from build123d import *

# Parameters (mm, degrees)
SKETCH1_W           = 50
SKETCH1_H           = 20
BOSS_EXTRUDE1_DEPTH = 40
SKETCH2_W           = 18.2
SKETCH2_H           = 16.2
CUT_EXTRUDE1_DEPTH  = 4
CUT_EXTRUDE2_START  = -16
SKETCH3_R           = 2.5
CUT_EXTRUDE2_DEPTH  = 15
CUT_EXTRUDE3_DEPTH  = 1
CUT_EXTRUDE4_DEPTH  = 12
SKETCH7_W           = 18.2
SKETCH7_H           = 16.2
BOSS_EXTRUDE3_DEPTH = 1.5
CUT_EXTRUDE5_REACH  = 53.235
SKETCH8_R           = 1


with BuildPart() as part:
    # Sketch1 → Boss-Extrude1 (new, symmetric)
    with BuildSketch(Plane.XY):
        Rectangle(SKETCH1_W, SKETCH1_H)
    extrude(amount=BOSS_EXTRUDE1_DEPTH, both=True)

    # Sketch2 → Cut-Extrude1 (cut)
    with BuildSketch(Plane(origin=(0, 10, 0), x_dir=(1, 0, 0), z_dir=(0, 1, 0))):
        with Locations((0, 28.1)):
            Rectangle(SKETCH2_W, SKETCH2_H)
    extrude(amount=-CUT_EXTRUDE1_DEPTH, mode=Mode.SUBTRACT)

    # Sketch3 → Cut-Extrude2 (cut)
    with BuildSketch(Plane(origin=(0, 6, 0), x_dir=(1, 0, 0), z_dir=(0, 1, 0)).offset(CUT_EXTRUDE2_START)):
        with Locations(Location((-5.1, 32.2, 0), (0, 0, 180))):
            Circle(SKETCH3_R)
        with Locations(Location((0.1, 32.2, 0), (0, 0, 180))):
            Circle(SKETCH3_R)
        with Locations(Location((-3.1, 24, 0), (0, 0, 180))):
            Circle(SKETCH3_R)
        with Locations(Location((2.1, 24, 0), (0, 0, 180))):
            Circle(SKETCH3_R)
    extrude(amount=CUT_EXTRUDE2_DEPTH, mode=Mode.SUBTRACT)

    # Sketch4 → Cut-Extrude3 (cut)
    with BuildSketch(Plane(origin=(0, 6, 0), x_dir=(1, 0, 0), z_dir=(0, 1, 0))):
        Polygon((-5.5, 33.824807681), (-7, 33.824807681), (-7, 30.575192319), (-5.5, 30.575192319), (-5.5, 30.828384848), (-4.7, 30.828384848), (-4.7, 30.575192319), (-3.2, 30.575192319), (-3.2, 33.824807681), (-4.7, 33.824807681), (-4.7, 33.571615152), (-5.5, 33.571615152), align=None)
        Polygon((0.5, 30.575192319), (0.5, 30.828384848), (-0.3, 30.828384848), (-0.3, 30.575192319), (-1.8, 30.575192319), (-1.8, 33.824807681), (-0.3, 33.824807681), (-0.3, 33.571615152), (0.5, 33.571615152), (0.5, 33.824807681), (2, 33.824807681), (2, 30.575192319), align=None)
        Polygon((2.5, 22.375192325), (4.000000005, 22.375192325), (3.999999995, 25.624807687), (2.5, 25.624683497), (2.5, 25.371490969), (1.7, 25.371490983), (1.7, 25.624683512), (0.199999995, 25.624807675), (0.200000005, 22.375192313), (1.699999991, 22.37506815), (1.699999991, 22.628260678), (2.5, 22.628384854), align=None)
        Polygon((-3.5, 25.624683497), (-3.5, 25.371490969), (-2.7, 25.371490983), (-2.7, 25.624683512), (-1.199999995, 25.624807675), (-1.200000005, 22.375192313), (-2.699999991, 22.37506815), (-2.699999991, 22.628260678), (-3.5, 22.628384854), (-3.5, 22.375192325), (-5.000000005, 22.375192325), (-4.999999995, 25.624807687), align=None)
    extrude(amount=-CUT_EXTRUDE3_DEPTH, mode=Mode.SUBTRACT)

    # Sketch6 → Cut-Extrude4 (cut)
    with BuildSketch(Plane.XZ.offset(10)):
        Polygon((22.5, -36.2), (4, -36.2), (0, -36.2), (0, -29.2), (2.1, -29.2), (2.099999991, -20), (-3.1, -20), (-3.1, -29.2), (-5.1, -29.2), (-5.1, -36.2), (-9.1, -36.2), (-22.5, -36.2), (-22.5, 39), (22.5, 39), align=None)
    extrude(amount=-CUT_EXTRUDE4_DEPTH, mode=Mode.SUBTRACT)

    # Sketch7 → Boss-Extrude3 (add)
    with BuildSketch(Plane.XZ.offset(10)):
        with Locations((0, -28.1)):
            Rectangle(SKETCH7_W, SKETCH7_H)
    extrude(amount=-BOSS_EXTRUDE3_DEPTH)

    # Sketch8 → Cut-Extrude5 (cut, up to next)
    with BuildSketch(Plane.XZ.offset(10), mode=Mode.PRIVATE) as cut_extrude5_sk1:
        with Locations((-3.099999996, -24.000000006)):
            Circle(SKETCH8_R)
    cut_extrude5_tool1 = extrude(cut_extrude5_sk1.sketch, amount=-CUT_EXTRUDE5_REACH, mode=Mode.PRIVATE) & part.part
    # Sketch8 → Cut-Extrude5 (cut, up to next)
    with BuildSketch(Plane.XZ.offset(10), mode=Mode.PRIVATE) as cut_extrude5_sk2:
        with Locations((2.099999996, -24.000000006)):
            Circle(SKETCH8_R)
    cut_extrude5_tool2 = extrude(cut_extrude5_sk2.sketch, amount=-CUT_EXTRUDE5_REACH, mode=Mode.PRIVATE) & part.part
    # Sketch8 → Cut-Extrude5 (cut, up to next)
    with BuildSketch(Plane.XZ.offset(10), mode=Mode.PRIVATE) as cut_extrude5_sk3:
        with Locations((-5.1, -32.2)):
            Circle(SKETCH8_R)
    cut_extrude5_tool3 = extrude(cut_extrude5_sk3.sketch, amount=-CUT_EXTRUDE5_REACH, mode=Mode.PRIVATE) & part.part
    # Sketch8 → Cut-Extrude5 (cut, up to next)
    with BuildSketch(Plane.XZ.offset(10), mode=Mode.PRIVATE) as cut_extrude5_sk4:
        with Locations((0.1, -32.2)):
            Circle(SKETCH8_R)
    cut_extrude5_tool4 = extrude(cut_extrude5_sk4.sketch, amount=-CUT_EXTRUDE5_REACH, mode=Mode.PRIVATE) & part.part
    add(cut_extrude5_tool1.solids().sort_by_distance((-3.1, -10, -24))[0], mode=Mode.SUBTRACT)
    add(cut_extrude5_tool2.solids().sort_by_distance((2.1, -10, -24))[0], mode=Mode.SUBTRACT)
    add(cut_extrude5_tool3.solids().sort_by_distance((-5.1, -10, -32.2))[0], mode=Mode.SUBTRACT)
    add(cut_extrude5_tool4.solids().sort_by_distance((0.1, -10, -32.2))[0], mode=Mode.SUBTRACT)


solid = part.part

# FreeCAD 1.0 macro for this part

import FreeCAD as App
import Part
import Sketcher
Q = App.Units.Quantity


def add_polygon(sketch, points):
    """Adds a closed chain of lines whose ends are joined by coincident constraints."""
    first, n = sketch.GeometryCount, len(points)
    for a, b in zip(points, points[1:] + points[:1]):
        sketch.addGeometry(Part.LineSegment(App.Vector(*a, 0), App.Vector(*b, 0)), False)
    for i in range(n):
        sketch.addConstraint(Sketcher.Constraint("Coincident", first + i, 2, first + (i + 1) % n, 1))

doc = App.newDocument("Part")
body = doc.addObject("PartDesign::Body", "Body")

# Sketch on XY plane
sketch1 = doc.addObject("Sketcher::SketchObject", "Sketch")
body.addObject(sketch1)
sketch1.AttachmentSupport = (doc.XY_Plane, [""])
sketch1.MapMode = "FlatFace"
add_polygon(sketch1, [(-25, 10), (-25, -10), (25, -10), (25, 10)])  # lines 0-3
sketch1.addConstraint(Sketcher.Constraint("Vertical", 0))
sketch1.addConstraint(Sketcher.Constraint("Horizontal", 1))
sketch1.addConstraint(Sketcher.Constraint("Vertical", 2))
sketch1.addConstraint(Sketcher.Constraint("Horizontal", 3))
sketch1.addConstraint(Sketcher.Constraint("Symmetric", 0, 2, 2, 2, -1, 1))
sketch1.addConstraint(Sketcher.Constraint("DistanceX", 1, 1, 1, 2, Q("50 mm")))
sketch1.addConstraint(Sketcher.Constraint("DistanceY", 0, 2, 0, 1, Q("20 mm")))
pad1 = doc.addObject("PartDesign::Pad", "Pad")
body.addObject(pad1)
pad1.Profile = sketch1
pad1.Length = 80
pad1.Midplane = True

# Sketch on XZ plane
sketch2 = doc.addObject("Sketcher::SketchObject", "Sketch001")
body.addObject(sketch2)
sketch2.AttachmentSupport = (doc.XZ_Plane, [""])
sketch2.MapMode = "FlatFace"
sketch2.AttachmentOffset = App.Placement(App.Vector(0, 0, -10), App.Rotation())
add_polygon(sketch2, [(-9, -36), (-9, -20), (9, -20), (9, -36)])  # lines 0-3
sketch2.addConstraint(Sketcher.Constraint("Vertical", 0))
sketch2.addConstraint(Sketcher.Constraint("Horizontal", 1))
sketch2.addConstraint(Sketcher.Constraint("Vertical", 2))
sketch2.addConstraint(Sketcher.Constraint("Horizontal", 3))
sketch2.addConstraint(Sketcher.Constraint("DistanceX", 1, 1, 1, 2, Q("18.2 mm")))
sketch2.addConstraint(Sketcher.Constraint("DistanceY", 0, 1, 0, 2, Q("16.2 mm")))
sketch2.addConstraint(Sketcher.Constraint("DistanceY", 0, 2, -1, 1, Q("20 mm")))
sketch2.addConstraint(Sketcher.Constraint("DistanceX", 0, 2, -1, 1, Q("9.1 mm")))
pocket1 = doc.addObject("PartDesign::Pocket", "Pocket")
body.addObject(pocket1)
pocket1.Profile = sketch2
pocket1.Length = 4
pocket1.Reversed = True

# Sketch on XZ plane
sketch3 = doc.addObject("Sketcher::SketchObject", "Sketch002")
body.addObject(sketch3)
sketch3.AttachmentSupport = (doc.XZ_Plane, [""])
sketch3.MapMode = "FlatFace"
sketch3.AttachmentOffset = App.Placement(App.Vector(0, 0, 10), App.Rotation())
sketch3.addGeometry(Part.Circle(App.Vector(-5.1, -32.2, 0), App.Vector(0, 0, 1), 2.5), False)
sketch3.addGeometry(Part.Circle(App.Vector(0.1, -32.2, 0), App.Vector(0, 0, 1), 2.5), False)
sketch3.addGeometry(Part.Circle(App.Vector(-3.1, -24, 0), App.Vector(0, 0, 1), 2.5), False)
sketch3.addGeometry(Part.Circle(App.Vector(2.1, -24, 0), App.Vector(0, 0, 1), 2.5), False)
sketch3.addConstraint(Sketcher.Constraint("Equal", 0, 1))
sketch3.addConstraint(Sketcher.Constraint("Equal", 1, 2))
sketch3.addConstraint(Sketcher.Constraint("Equal", 2, 3))
sketch3.addConstraint(Sketcher.Constraint("Horizontal", 0, 3, 1, 3))
sketch3.addConstraint(Sketcher.Constraint("Horizontal", 2, 3, 3, 3))
sketch3.addConstraint(Sketcher.Constraint("Diameter", 0, Q("5 mm")))
sketch3.addConstraint(Sketcher.Constraint("DistanceY", 2, 3, -1, 1, Q("24 mm")))
sketch3.addConstraint(Sketcher.Constraint("DistanceX", 0, 3, 2, 3, Q("2 mm")))
sketch3.addConstraint(Sketcher.Constraint("DistanceX", 1, 3, 3, 3, Q("2 mm")))
sketch3.addConstraint(Sketcher.Constraint("DistanceX", 0, 3, -1, 1, Q("5.1 mm")))
sketch3.addConstraint(Sketcher.Constraint("DistanceY", 0, 3, -1, 1, Q("32.2 mm")))
sketch3.addConstraint(Sketcher.Constraint("DistanceX", -1, 1, 1, 3, Q("0.1 mm")))
pocket2 = doc.addObject("PartDesign::Pocket", "Pocket001")
body.addObject(pocket2)
pocket2.Profile = sketch3
pocket2.Length = 15

# Sketch on XZ plane
sketch4 = doc.addObject("Sketcher::SketchObject", "Sketch003")
body.addObject(sketch4)
sketch4.AttachmentSupport = (doc.XZ_Plane, [""])
sketch4.MapMode = "FlatFace"
sketch4.AttachmentOffset = App.Placement(App.Vector(0, 0, -6), App.Rotation())
add_polygon(sketch4, [(-5.5, -33.82), (-7, -33.82), (-7, -30.58), (-5.5, -30.58), (-5.5, -30.83), (-4.7, -30.83), (-4.7, -30.58), (-3.2, -30.58), (-3.2, -33.82), (-4.7, -33.82), (-4.7, -33.57), (-5.5, -33.57)])  # lines 0-11
add_polygon(sketch4, [(0.5, -30.83), (0.5, -30.58), (2, -30.58), (2, -33.82), (0.5, -33.82), (0.5, -33.57), (-0.3, -33.57), (-0.3, -33.82), (-1.8, -33.82), (-1.8, -30.58), (-0.3, -30.58), (-0.3, -30.83)])  # lines 12-23
add_polygon(sketch4, [(2.5, -22.38), (4, -22.38), (4, -25.62), (2.5, -25.62), (2.5, -25.37), (1.7, -25.37), (1.7, -25.62), (0.2, -25.62), (0.2, -22.38), (1.7, -22.38), (1.7, -22.63), (2.5, -22.63)])  # lines 24-35
add_polygon(sketch4, [(-3.5, -25.37), (-3.5, -25.62), (-5, -25.62), (-5, -22.38), (-3.5, -22.38), (-3.5, -22.63), (-2.7, -22.63), (-2.7, -22.38), (-1.2, -22.38), (-1.2, -25.62), (-2.7, -25.62), (-2.7, -25.37)])  # lines 36-47
sketch4.addConstraint(Sketcher.Constraint("Horizontal", 0))
sketch4.addConstraint(Sketcher.Constraint("Vertical", 1))
sketch4.addConstraint(Sketcher.Constraint("Horizontal", 2))
sketch4.addConstraint(Sketcher.Constraint("Vertical", 3))
sketch4.addConstraint(Sketcher.Constraint("Horizontal", 4))
sketch4.addConstraint(Sketcher.Constraint("Vertical", 5))
sketch4.addConstraint(Sketcher.Constraint("Horizontal", 6))
sketch4.addConstraint(Sketcher.Constraint("Vertical", 7))
sketch4.addConstraint(Sketcher.Constraint("Horizontal", 8))
sketch4.addConstraint(Sketcher.Constraint("Vertical", 9))
sketch4.addConstraint(Sketcher.Constraint("Horizontal", 10))
sketch4.addConstraint(Sketcher.Constraint("Vertical", 11))
sketch4.addConstraint(Sketcher.Constraint("Vertical", 12))
sketch4.addConstraint(Sketcher.Constraint("Horizontal", 13))
sketch4.addConstraint(Sketcher.Constraint("Vertical", 14))
sketch4.addConstraint(Sketcher.Constraint("Horizontal", 15))
sketch4.addConstraint(Sketcher.Constraint("Vertical", 16))
sketch4.addConstraint(Sketcher.Constraint("Horizontal", 17))
sketch4.addConstraint(Sketcher.Constraint("Vertical", 18))
sketch4.addConstraint(Sketcher.Constraint("Horizontal", 19))
sketch4.addConstraint(Sketcher.Constraint("Vertical", 20))
sketch4.addConstraint(Sketcher.Constraint("Horizontal", 21))
sketch4.addConstraint(Sketcher.Constraint("Vertical", 22))
sketch4.addConstraint(Sketcher.Constraint("Horizontal", 23))
sketch4.addConstraint(Sketcher.Constraint("Horizontal", 24))
sketch4.addConstraint(Sketcher.Constraint("Vertical", 25))
sketch4.addConstraint(Sketcher.Constraint("Vertical", 27))
sketch4.addConstraint(Sketcher.Constraint("Horizontal", 28))
sketch4.addConstraint(Sketcher.Constraint("Vertical", 29))
sketch4.addConstraint(Sketcher.Constraint("Vertical", 31))
sketch4.addConstraint(Sketcher.Constraint("Vertical", 33))
sketch4.addConstraint(Sketcher.Constraint("Vertical", 35))
sketch4.addConstraint(Sketcher.Constraint("Vertical", 36))
sketch4.addConstraint(Sketcher.Constraint("Vertical", 38))
sketch4.addConstraint(Sketcher.Constraint("Horizontal", 39))
sketch4.addConstraint(Sketcher.Constraint("Vertical", 40))
sketch4.addConstraint(Sketcher.Constraint("Vertical", 42))
sketch4.addConstraint(Sketcher.Constraint("Vertical", 44))
sketch4.addConstraint(Sketcher.Constraint("Vertical", 46))
sketch4.addConstraint(Sketcher.Constraint("Horizontal", 47))
sketch4.addConstraint(Sketcher.Constraint("Parallel", 30, 32))
sketch4.addConstraint(Sketcher.Constraint("Parallel", 32, 37))
sketch4.addConstraint(Sketcher.Constraint("Parallel", 26, 43))
sketch4.addConstraint(Sketcher.Constraint("Parallel", 43, 45))
sketch4.addConstraint(Sketcher.Constraint("Horizontal", 2, 2, 5, 2))
sketch4.addConstraint(Sketcher.Constraint("Horizontal", 0, 2, 7, 2))
sketch4.addConstraint(Sketcher.Constraint("Horizontal", 6, 2, 12, 2))
sketch4.addConstraint(Sketcher.Constraint("Horizontal", 11, 2, 14, 2))
sketch4.addConstraint(Sketcher.Constraint("Horizontal", 10, 2, 16, 2))
sketch4.addConstraint(Sketcher.Constraint("Horizontal", 15, 2, 18, 2))
sketch4.addConstraint(Sketcher.Constraint("Horizontal", 13, 2, 20, 2))
sketch4.addConstraint(Sketcher.Constraint("Horizontal", 4, 2, 22, 2))
sketch4.addConstraint(Sketcher.Constraint("Horizontal", 26, 2, 29, 2))
sketch4.addConstraint(Sketcher.Constraint("Horizontal", 25, 2, 30, 2))
sketch4.addConstraint(Sketcher.Constraint("Horizontal", 24, 2, 31, 2))
sketch4.addConstraint(Sketcher.Constraint("Horizontal", 29, 2, 36, 2))
sketch4.addConstraint(Sketcher.Constraint("Horizontal", 35, 2, 38, 2))
sketch4.addConstraint(Sketcher.Constraint("Horizontal", 34, 2, 40, 2))
sketch4.addConstraint(Sketcher.Constraint("Horizontal", 33, 2, 41, 2))
sketch4.addConstraint(Sketcher.Constraint("Horizontal", 32, 2, 42, 2))
sketch4.addConstraint(Sketcher.Constraint("Horizontal", 37, 2, 44, 2))
sketch4.addConstraint(Sketcher.Constraint("Horizontal", 28, 2, 46, 2))
sketch4.addConstraint(Sketcher.Constraint("Vertical", 5, 2, 8, 2))
sketch4.addConstraint(Sketcher.Constraint("Vertical", 3, 2, 10, 2))
sketch4.addConstraint(Sketcher.Constraint("Vertical", 12, 2, 15, 2))
sketch4.addConstraint(Sketcher.Constraint("Vertical", 18, 2, 21, 2))
sketch4.addConstraint(Sketcher.Constraint("Vertical", 29, 2, 32, 2))
sketch4.addConstraint(Sketcher.Constraint("Vertical", 27, 2, 34, 2))
sketch4.addConstraint(Sketcher.Constraint("Vertical", 36, 2, 39, 2))
sketch4.addConstraint(Sketcher.Constraint("Vertical", 42, 2, 45, 2))
sketch4.addConstraint(Sketcher.Constraint("Equal", 2, 6))
sketch4.addConstraint(Sketcher.Constraint("Equal", 8, 13))
sketch4.addConstraint(Sketcher.Constraint("Equal", 10, 17))
sketch4.addConstraint(Sketcher.Constraint("Equal", 15, 19))
sketch4.addConstraint(Sketcher.Constraint("Equal", 21, 24))
sketch4.addConstraint(Sketcher.Constraint("Equal", 23, 28))
sketch4.addConstraint(Sketcher.Constraint("Equal", 24, 39))
sketch4.addConstraint(Sketcher.Constraint("Equal", 28, 47))
sketch4.addConstraint(Sketcher.Constraint("Equal", 5, 9))
sketch4.addConstraint(Sketcher.Constraint("Equal", 20, 25))
sketch4.addConstraint(Sketcher.Constraint("Equal", 22, 27))
sketch4.addConstraint(Sketcher.Constraint("Equal", 29, 33))
sketch4.addConstraint(Sketcher.Constraint("Equal", 33, 35))
sketch4.addConstraint(Sketcher.Constraint("Equal", 26, 30))
sketch4.addConstraint(Sketcher.Constraint("Equal", 37, 43))
sketch4.addConstraint(Sketcher.Constraint("DistanceX", 0, 2, 0, 1, Q("1.5 mm")))
sketch4.addConstraint(Sketcher.Constraint("DistanceX", 4, 1, 4, 2, Q("0.8 mm")))
sketch4.addConstraint(Sketcher.Constraint("DistanceX", 0, 2, -1, 1, Q("7 mm")))
sketch4.addConstraint(Sketcher.Constraint("DistanceX", -1, 1, 13, 2, Q("2 mm")))
sketch4.addConstraint(Sketcher.Constraint("DistanceX", -1, 1, 24, 2, Q("4 mm")))
sketch4.addConstraint(Sketcher.Constraint("DistanceX", 37, 2, -1, 1, Q("5 mm")))
sketch4.addConstraint(Sketcher.Constraint("DistanceY", 13, 2, 24, 2, Q("8.2 mm")))
sketch4.addConstraint(Sketcher.Constraint("DistanceY", 23, 2, 26, 2, Q("5.203701 mm")))
sketch4.addConstraint(Sketcher.Constraint("DistanceY", 1, 1, 1, 2, Q("3.249615 mm")))
sketch4.addConstraint(Sketcher.Constraint("DistanceY", 3, 2, 3, 1, Q("0.253193 mm")))
sketch4.addConstraint(Sketcher.Constraint("DistanceY", 27, 2, -1, 1, Q("25.371491 mm")))
pocket3 = doc.addObject("PartDesign::Pocket", "Pocket002")
body.addObject(pocket3)
pocket3.Profile = sketch4
pocket3.Length = 1
pocket3.Reversed = True

# Sketch on XZ plane
sketch5 = doc.addObject("Sketcher::SketchObject", "Sketch004")
body.addObject(sketch5)
sketch5.AttachmentSupport = (doc.XZ_Plane, [""])
sketch5.MapMode = "FlatFace"
sketch5.AttachmentOffset = App.Placement(App.Vector(0, 0, 10), App.Rotation())
add_polygon(sketch5, [(0, -36.2), (22.5, -36.2), (22.5, 39), (-22.5, 39), (-22.5, -36.2), (-5.1, -36.2), (-5.1, -29.2), (-3.1, -29.2), (-3.1, -20), (2.1, -20), (2.1, -29.2), (0, -29.2)])  # lines 0-11
sketch5.addConstraint(Sketcher.Constraint("Horizontal", 0))
sketch5.addConstraint(Sketcher.Constraint("Vertical", 1))
sketch5.addConstraint(Sketcher.Constraint("Horizontal", 2))
sketch5.addConstraint(Sketcher.Constraint("Vertical", 3))
sketch5.addConstraint(Sketcher.Constraint("Horizontal", 4))
sketch5.addConstraint(Sketcher.Constraint("Vertical", 5))
sketch5.addConstraint(Sketcher.Constraint("Horizontal", 6))
sketch5.addConstraint(Sketcher.Constraint("Vertical", 7))
sketch5.addConstraint(Sketcher.Constraint("Horizontal", 8))
sketch5.addConstraint(Sketcher.Constraint("Vertical", 9))
sketch5.addConstraint(Sketcher.Constraint("Horizontal", 10))
sketch5.addConstraint(Sketcher.Constraint("Vertical", 11))
sketch5.addConstraint(Sketcher.Constraint("Symmetric", 0, 2, 3, 2, -2))
sketch5.addConstraint(Sketcher.Constraint("PointOnObject", 10, 2, -2))
sketch5.addConstraint(Sketcher.Constraint("Horizontal", 6, 2, 9, 2))
sketch5.addConstraint(Sketcher.Constraint("DistanceX", 2, 2, 2, 1, Q("45 mm")))
sketch5.addConstraint(Sketcher.Constraint("DistanceX", 6, 1, 6, 2, Q("2 mm")))
sketch5.addConstraint(Sketcher.Constraint("DistanceY", 5, 1, 5, 2, Q("7 mm")))
sketch5.addConstraint(Sketcher.Constraint("DistanceX", 4, 1, 4, 2, Q("17.4 mm")))
sketch5.addConstraint(Sketcher.Constraint("DistanceX", 8, 1, 8, 2, Q("5.2 mm")))
sketch5.addConstraint(Sketcher.Constraint("DistanceY", 1, 1, 1, 2, Q("75.2 mm")))
sketch5.addConstraint(Sketcher.Constraint("DistanceY", 7, 1, 7, 2, Q("9.2 mm")))
sketch5.addConstraint(Sketcher.Constraint("DistanceY", -1, 1, 1, 2, Q("39 mm")))
pocket4 = doc.addObject("PartDesign::Pocket", "Pocket003")
body.addObject(pocket4)
pocket4.Profile = sketch5
pocket4.Length = 12

# Sketch on XZ plane
sketch6 = doc.addObject("Sketcher::SketchObject", "Sketch005")
body.addObject(sketch6)
sketch6.AttachmentSupport = (doc.XZ_Plane, [""])
sketch6.MapMode = "FlatFace"
sketch6.AttachmentOffset = App.Placement(App.Vector(0, 0, 10), App.Rotation())
add_polygon(sketch6, [(-9, -20), (-9, -36), (9, -36), (9, -20)])  # lines 0-3
sketch6.addConstraint(Sketcher.Constraint("Vertical", 0))
sketch6.addConstraint(Sketcher.Constraint("Horizontal", 1))
sketch6.addConstraint(Sketcher.Constraint("Vertical", 2))
sketch6.addConstraint(Sketcher.Constraint("Horizontal", 3))
sketch6.addConstraint(Sketcher.Constraint("DistanceX", 1, 1, 1, 2, Q("18.2 mm")))
sketch6.addConstraint(Sketcher.Constraint("DistanceY", 0, 2, 0, 1, Q("16.2 mm")))
sketch6.addConstraint(Sketcher.Constraint("DistanceY", 2, 2, -1, 1, Q("20 mm")))
sketch6.addConstraint(Sketcher.Constraint("DistanceX", 0, 2, -1, 1, Q("9.1 mm")))
pad2 = doc.addObject("PartDesign::Pad", "Pad001")
body.addObject(pad2)
pad2.Profile = sketch6
pad2.Length = 1.5
pad2.Reversed = True

# Sketch on XZ plane
sketch7 = doc.addObject("Sketcher::SketchObject", "Sketch006")
body.addObject(sketch7)
sketch7.AttachmentSupport = (doc.XZ_Plane, [""])
sketch7.MapMode = "FlatFace"
sketch7.AttachmentOffset = App.Placement(App.Vector(0, 0, 10), App.Rotation())
sketch7.addGeometry(Part.Circle(App.Vector(-3.1, -24, 0), App.Vector(0, 0, 1), 1), False)
sketch7.addConstraint(Sketcher.Constraint("Diameter", 0, Q("2 mm")))
sketch7.addConstraint(Sketcher.Constraint("DistanceY", 0, 3, -1, 1, Q("24 mm")))
sketch7.addConstraint(Sketcher.Constraint("DistanceX", 0, 3, -1, 1, Q("3.1 mm")))
pocket5 = doc.addObject("PartDesign::Pocket", "Pocket004")
body.addObject(pocket5)
pocket5.Profile = sketch7
pocket5.Type = "UpToFirst"

# Sketch on XZ plane
sketch8 = doc.addObject("Sketcher::SketchObject", "Sketch007")
body.addObject(sketch8)
sketch8.AttachmentSupport = (doc.XZ_Plane, [""])
sketch8.MapMode = "FlatFace"
sketch8.AttachmentOffset = App.Placement(App.Vector(0, 0, 10), App.Rotation())
sketch8.addGeometry(Part.Circle(App.Vector(2.1, -24, 0), App.Vector(0, 0, 1), 1), False)
sketch8.addConstraint(Sketcher.Constraint("Diameter", 0, Q("2 mm")))
sketch8.addConstraint(Sketcher.Constraint("DistanceY", 0, 3, -1, 1, Q("24 mm")))
sketch8.addConstraint(Sketcher.Constraint("DistanceX", -1, 1, 0, 3, Q("2.1 mm")))
pocket6 = doc.addObject("PartDesign::Pocket", "Pocket005")
body.addObject(pocket6)
pocket6.Profile = sketch8
pocket6.Type = "UpToFirst"

# Sketch on XZ plane
sketch9 = doc.addObject("Sketcher::SketchObject", "Sketch008")
body.addObject(sketch9)
sketch9.AttachmentSupport = (doc.XZ_Plane, [""])
sketch9.MapMode = "FlatFace"
sketch9.AttachmentOffset = App.Placement(App.Vector(0, 0, 10), App.Rotation())
sketch9.addGeometry(Part.Circle(App.Vector(-5.1, -32.2, 0), App.Vector(0, 0, 1), 1), False)
sketch9.addConstraint(Sketcher.Constraint("Diameter", 0, Q("2 mm")))
sketch9.addConstraint(Sketcher.Constraint("DistanceX", 0, 3, -1, 1, Q("5.1 mm")))
sketch9.addConstraint(Sketcher.Constraint("DistanceY", 0, 3, -1, 1, Q("32.2 mm")))
pocket7 = doc.addObject("PartDesign::Pocket", "Pocket006")
body.addObject(pocket7)
pocket7.Profile = sketch9
pocket7.Type = "UpToFirst"

# Sketch on XZ plane
sketch10 = doc.addObject("Sketcher::SketchObject", "Sketch009")
body.addObject(sketch10)
sketch10.AttachmentSupport = (doc.XZ_Plane, [""])
sketch10.MapMode = "FlatFace"
sketch10.AttachmentOffset = App.Placement(App.Vector(0, 0, 10), App.Rotation())
sketch10.addGeometry(Part.Circle(App.Vector(0.1, -32.2, 0), App.Vector(0, 0, 1), 1), False)
sketch10.addConstraint(Sketcher.Constraint("Diameter", 0, Q("2 mm")))
sketch10.addConstraint(Sketcher.Constraint("DistanceX", -1, 1, 0, 3, Q("0.1 mm")))
sketch10.addConstraint(Sketcher.Constraint("DistanceY", 0, 3, -1, 1, Q("32.2 mm")))
pocket8 = doc.addObject("PartDesign::Pocket", "Pocket007")
body.addObject(pocket8)
pocket8.Profile = sketch10
pocket8.Type = "UpToFirst"

doc.recompute()
